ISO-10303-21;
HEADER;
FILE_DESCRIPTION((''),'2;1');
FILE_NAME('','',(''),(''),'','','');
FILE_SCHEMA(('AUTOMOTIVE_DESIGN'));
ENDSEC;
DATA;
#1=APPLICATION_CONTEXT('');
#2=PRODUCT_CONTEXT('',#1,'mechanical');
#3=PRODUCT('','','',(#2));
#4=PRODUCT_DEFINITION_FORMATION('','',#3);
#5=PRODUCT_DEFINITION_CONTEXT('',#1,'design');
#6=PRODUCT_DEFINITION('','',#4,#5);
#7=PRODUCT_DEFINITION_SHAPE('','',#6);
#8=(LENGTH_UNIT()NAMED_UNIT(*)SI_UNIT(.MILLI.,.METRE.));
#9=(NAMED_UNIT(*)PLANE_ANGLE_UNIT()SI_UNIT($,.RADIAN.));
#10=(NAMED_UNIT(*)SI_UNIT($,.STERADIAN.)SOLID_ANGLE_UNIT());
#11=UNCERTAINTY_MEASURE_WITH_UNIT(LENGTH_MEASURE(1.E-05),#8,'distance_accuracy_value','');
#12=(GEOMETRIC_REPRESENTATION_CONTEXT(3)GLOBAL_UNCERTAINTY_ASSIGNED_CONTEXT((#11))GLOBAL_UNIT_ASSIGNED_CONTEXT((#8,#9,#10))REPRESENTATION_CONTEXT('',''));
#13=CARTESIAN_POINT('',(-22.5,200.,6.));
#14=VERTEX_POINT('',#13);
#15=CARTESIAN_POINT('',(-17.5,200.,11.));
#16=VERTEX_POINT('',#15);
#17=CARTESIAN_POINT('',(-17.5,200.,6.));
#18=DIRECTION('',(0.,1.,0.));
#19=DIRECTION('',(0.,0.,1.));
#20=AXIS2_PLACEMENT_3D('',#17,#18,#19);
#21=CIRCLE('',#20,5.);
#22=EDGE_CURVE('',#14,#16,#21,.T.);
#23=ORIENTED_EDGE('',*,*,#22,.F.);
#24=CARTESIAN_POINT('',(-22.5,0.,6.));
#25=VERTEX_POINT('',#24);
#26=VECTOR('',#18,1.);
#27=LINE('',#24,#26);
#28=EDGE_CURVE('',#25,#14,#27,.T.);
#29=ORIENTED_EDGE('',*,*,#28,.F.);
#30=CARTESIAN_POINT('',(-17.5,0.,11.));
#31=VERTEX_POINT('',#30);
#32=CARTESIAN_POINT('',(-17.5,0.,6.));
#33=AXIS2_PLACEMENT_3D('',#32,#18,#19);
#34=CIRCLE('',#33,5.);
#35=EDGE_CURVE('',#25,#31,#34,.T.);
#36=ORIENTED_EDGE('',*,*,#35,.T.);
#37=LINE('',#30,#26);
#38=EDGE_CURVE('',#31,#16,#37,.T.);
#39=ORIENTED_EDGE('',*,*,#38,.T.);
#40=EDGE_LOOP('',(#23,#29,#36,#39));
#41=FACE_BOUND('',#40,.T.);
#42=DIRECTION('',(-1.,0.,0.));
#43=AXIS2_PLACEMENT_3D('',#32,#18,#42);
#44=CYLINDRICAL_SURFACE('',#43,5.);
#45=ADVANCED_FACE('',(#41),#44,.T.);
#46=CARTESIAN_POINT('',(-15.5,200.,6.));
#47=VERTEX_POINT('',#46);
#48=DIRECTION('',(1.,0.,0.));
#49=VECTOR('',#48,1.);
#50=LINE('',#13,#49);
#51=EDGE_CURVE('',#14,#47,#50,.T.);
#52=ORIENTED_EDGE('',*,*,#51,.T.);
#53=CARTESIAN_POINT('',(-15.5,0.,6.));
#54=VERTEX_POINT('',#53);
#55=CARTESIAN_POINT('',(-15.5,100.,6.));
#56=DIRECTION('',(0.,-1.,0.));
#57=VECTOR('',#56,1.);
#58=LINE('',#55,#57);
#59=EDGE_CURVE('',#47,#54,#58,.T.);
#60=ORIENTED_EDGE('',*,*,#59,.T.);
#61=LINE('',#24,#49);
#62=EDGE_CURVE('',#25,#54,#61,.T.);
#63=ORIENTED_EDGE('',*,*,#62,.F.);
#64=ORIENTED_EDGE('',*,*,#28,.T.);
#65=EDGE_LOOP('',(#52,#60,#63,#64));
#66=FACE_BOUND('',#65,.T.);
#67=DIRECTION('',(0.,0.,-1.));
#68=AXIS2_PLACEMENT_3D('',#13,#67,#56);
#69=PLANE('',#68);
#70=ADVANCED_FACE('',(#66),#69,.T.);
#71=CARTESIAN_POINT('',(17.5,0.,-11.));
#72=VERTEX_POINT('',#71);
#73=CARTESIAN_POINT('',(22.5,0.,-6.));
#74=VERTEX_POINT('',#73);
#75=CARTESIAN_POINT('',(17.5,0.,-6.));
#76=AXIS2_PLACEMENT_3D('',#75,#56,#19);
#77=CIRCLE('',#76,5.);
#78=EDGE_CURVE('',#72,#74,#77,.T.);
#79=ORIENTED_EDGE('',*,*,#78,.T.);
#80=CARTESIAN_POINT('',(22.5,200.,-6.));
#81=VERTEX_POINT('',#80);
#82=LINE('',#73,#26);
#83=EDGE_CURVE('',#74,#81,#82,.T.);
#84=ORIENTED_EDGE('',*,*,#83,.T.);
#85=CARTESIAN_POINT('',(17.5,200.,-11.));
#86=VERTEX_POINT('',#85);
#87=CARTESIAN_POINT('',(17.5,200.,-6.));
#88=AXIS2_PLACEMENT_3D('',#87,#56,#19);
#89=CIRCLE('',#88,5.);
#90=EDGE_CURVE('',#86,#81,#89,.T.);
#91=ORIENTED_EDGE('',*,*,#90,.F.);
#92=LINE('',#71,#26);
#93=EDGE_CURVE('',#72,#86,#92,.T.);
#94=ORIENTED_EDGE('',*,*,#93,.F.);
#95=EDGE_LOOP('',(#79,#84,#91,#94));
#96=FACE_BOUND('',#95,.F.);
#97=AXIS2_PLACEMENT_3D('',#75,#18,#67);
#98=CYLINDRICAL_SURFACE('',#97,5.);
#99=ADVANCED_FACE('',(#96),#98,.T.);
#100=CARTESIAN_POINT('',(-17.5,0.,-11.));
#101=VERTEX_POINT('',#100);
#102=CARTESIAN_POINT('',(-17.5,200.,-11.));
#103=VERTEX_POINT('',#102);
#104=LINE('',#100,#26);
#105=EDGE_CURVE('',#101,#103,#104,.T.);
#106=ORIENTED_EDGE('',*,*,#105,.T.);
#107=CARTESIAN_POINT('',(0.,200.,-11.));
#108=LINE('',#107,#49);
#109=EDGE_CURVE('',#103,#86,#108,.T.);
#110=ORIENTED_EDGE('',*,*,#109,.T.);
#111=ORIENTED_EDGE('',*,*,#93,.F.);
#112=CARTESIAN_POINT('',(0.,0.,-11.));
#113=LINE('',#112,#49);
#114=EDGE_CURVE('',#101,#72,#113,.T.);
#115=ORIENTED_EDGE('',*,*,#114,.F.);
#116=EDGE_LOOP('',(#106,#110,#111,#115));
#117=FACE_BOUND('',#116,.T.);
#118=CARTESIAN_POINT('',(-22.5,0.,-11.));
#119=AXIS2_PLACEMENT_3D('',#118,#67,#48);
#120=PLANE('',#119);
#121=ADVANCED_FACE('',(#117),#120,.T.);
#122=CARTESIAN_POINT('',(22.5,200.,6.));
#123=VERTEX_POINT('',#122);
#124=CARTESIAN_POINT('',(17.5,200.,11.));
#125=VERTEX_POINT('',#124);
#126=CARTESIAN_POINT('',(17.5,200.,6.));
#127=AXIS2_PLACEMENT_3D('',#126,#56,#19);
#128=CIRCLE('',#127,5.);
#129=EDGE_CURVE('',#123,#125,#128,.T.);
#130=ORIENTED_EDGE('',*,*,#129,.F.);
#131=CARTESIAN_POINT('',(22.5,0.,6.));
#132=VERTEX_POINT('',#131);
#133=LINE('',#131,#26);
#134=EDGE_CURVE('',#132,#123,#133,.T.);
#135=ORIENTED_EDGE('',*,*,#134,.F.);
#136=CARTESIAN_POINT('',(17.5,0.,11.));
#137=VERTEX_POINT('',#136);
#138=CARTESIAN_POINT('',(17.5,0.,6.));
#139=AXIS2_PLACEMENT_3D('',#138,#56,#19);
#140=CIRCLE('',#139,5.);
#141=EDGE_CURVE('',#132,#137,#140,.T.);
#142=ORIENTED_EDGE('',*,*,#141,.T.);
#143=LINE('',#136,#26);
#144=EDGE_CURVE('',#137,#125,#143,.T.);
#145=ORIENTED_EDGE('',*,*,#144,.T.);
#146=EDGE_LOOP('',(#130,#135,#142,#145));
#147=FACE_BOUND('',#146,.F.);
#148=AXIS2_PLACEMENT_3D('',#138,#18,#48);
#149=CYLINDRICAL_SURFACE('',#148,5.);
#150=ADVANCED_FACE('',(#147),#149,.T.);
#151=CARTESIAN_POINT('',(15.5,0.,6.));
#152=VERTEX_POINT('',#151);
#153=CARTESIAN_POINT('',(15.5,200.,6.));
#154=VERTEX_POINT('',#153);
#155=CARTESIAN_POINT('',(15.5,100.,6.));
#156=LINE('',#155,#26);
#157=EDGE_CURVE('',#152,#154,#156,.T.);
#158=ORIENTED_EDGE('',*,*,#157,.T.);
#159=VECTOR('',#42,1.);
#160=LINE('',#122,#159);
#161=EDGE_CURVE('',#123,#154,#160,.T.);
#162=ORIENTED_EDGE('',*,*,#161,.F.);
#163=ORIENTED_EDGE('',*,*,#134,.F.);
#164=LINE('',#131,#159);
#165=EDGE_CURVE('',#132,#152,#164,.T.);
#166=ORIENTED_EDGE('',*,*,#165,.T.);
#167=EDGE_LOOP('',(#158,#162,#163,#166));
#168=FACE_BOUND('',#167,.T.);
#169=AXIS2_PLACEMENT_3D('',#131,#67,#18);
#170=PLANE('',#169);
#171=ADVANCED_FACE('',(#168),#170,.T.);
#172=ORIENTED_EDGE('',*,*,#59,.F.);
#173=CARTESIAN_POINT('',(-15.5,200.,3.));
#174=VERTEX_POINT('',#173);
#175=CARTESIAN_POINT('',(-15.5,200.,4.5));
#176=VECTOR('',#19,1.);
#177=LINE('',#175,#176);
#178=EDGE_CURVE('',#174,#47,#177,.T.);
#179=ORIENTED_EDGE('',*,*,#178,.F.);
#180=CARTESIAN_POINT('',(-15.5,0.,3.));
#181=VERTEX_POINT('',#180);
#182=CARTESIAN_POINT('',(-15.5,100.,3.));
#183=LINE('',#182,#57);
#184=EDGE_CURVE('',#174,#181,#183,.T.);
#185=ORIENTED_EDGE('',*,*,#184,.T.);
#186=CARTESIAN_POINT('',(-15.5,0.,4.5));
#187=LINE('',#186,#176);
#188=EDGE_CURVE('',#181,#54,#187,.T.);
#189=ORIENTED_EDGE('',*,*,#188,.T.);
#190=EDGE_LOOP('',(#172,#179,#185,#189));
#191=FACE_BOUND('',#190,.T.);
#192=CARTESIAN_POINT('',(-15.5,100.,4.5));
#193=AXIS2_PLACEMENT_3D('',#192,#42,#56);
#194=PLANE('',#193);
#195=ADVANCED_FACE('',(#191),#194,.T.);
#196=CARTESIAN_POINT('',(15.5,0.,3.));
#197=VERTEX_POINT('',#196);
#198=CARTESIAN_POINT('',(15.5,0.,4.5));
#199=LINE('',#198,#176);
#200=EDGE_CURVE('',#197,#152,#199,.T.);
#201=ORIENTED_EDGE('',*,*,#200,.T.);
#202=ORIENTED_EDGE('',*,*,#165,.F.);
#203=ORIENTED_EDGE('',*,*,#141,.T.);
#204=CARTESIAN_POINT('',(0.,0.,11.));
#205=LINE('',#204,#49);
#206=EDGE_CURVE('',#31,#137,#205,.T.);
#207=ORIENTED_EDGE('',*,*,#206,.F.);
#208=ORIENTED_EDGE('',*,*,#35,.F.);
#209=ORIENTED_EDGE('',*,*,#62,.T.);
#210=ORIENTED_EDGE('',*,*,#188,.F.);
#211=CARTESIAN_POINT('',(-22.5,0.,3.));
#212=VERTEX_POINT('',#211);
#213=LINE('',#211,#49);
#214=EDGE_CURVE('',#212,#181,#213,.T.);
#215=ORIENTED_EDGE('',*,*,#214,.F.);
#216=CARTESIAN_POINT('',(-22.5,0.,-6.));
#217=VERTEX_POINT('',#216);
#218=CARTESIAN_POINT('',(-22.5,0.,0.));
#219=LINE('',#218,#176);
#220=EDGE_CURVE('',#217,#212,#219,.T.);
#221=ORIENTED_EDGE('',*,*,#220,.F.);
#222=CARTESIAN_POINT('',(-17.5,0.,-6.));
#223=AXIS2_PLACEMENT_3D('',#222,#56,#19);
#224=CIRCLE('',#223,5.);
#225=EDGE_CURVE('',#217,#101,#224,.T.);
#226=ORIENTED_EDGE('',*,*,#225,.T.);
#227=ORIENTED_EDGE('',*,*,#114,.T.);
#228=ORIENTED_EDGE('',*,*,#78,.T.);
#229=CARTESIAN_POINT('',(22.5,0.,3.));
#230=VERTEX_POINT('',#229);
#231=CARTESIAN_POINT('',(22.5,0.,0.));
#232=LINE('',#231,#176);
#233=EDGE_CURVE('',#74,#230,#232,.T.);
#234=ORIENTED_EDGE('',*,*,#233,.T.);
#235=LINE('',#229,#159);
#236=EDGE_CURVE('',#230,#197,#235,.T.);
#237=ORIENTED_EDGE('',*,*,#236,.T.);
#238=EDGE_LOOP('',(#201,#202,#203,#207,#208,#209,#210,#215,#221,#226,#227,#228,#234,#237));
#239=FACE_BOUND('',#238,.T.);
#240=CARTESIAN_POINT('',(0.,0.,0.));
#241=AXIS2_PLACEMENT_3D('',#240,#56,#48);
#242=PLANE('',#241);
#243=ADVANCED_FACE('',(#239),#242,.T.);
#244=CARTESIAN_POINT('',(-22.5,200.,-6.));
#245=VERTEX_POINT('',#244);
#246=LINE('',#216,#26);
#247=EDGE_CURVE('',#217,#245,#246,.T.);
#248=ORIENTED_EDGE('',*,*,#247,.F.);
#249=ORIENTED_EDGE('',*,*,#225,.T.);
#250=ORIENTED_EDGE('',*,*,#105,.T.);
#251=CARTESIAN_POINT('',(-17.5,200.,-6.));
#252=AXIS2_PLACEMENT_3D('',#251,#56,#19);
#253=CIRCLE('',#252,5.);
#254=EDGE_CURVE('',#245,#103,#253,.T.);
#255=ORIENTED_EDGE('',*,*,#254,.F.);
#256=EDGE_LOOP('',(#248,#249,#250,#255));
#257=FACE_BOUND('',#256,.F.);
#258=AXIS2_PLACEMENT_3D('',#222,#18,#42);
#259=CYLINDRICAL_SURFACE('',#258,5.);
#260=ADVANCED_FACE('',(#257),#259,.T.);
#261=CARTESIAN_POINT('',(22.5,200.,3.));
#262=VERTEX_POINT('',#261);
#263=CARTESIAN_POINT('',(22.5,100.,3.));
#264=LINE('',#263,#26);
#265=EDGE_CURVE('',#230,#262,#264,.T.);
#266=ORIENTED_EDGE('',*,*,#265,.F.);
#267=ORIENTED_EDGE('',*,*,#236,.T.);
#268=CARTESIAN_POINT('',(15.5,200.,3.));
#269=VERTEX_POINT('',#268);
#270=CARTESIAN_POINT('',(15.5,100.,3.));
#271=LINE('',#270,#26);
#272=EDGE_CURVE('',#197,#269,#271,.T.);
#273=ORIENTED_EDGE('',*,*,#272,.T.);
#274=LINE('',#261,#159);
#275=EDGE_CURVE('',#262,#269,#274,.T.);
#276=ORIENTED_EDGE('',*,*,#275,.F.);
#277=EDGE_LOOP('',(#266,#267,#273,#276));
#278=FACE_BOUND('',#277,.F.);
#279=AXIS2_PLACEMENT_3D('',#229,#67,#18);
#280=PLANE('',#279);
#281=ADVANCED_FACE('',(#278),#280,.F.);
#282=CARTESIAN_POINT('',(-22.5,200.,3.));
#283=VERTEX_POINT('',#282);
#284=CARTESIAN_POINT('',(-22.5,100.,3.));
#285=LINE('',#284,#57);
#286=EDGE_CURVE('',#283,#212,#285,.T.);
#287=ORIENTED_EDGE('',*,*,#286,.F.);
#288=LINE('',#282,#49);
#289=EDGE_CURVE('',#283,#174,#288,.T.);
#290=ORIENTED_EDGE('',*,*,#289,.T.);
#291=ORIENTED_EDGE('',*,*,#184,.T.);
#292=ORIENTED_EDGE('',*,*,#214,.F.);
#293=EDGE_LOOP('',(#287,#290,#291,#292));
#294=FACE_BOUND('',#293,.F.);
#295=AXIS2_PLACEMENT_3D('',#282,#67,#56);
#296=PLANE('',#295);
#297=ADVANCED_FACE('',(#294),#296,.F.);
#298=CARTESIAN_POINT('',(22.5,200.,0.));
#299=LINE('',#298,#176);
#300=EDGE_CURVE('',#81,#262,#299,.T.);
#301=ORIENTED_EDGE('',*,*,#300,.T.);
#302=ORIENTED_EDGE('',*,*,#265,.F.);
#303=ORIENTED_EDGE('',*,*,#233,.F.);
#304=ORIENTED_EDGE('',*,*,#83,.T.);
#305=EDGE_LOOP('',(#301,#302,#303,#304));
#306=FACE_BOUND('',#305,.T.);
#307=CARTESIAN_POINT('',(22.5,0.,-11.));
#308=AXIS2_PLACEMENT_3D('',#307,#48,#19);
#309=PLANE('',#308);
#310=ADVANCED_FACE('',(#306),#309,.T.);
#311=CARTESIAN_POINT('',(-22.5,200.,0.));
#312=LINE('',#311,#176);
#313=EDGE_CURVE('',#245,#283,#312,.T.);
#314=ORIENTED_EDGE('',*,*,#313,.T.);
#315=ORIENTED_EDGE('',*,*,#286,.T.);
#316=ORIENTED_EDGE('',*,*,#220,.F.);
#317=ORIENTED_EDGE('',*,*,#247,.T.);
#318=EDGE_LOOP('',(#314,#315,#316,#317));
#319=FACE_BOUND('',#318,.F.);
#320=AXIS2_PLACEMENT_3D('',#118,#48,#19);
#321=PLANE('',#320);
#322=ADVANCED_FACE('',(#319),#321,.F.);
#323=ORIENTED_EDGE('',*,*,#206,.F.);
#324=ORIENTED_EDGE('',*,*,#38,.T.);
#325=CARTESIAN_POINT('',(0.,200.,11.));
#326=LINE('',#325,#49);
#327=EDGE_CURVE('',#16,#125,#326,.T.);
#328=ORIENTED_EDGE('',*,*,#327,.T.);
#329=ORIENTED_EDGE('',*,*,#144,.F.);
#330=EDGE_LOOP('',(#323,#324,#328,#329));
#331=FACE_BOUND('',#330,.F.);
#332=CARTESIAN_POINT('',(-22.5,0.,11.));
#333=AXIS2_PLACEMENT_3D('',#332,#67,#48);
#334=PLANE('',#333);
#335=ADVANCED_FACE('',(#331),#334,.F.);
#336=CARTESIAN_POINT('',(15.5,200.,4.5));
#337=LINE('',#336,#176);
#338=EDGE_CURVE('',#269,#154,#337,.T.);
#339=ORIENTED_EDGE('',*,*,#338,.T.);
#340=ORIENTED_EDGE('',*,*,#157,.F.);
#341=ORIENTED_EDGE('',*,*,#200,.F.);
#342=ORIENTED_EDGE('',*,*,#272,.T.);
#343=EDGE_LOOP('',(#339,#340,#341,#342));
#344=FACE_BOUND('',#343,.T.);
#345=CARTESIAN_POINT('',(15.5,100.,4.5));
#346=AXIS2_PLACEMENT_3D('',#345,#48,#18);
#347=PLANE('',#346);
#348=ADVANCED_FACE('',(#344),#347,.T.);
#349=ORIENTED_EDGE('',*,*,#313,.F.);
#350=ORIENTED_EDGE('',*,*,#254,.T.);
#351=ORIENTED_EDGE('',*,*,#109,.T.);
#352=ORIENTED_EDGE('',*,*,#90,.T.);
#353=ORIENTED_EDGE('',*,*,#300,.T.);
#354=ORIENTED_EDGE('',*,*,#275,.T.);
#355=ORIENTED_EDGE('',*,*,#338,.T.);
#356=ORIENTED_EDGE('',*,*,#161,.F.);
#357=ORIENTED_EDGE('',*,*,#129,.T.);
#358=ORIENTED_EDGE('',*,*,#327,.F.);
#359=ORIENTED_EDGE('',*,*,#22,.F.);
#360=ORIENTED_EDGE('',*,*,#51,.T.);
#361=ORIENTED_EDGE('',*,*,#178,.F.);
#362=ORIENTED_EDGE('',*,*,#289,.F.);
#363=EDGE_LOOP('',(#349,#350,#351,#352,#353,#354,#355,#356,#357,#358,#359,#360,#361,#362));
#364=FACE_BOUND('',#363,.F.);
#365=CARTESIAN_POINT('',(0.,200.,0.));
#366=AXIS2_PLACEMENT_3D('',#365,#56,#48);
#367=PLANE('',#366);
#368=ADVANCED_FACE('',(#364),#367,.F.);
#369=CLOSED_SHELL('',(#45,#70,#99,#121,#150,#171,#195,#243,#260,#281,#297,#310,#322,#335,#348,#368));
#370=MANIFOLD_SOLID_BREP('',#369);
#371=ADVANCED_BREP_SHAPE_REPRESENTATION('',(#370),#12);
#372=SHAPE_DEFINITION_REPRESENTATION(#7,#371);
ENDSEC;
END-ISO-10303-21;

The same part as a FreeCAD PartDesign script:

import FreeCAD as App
import Part
import Sketcher
from FreeCAD import Vector


def edges_at(feature, points):
    """Names of the edges that pass closest to the given points."""
    edges = feature.Shape.Edges
    near = lambda p: min(range(len(edges)), key=lambda i: edges[i].distToShape(Part.Vertex(*p))[0])
    return sorted({f"Edge{near(p) + 1}" for p in points})


def add_polygon(sketch, points):
    """Adds a closed chain of lines whose ends are joined by coincident constraints."""
    first, n = sketch.GeometryCount, len(points)
    for a, b in zip(points, points[1:] + points[:1]):
        sketch.addGeometry(Part.LineSegment(App.Vector(*a, 0), App.Vector(*b, 0)), False)
    for i in range(n):
        sketch.addConstraint(Sketcher.Constraint("Coincident", first + i, 2, first + (i + 1) % n, 1))

doc = App.newDocument("Part")
params = doc.addObject("Spreadsheet::Sheet", "Params")
for row, (alias, value) in enumerate([
    ("sketch1_width", "45 mm"),
    ("sketch1_height", "22 mm"),
    ("pad1_length", "200 mm"),
    ("fillet_radius", "5 mm"),
    ("sketch2_width", "200 mm"),
    ("sketch2_height", "3 mm"),
    ("pocket1_length", "7 mm"),
    ("sketch3_width", "200 mm"),
    ("sketch3_height", "3 mm"),
    ("pocket2_length", "7 mm"),
], start=1):
    params.set(f"A{row}", alias)
    params.set(f"B{row}", "=" + value)
    params.setAlias(f"B{row}", alias)

body = doc.addObject("PartDesign::Body", "Body")

# Sketch on XZ plane
sketch1 = body.newObject("Sketcher::SketchObject", "Sketch")
sketch1.AttachmentSupport = (doc.getObject("XZ_Plane"), [""])
sketch1.MapMode = "FlatFace"
add_polygon(sketch1, [(-22, 11), (-22, -11), (22, -11), (22, 11)])  # lines 0-3
sketch1.addConstraint(Sketcher.Constraint("Vertical", 0))
sketch1.addConstraint(Sketcher.Constraint("Horizontal", 1))
sketch1.addConstraint(Sketcher.Constraint("Vertical", 2))
sketch1.addConstraint(Sketcher.Constraint("Horizontal", 3))
sketch1.addConstraint(Sketcher.Constraint("Symmetric", 0, 2, 2, 2, -1, 1))
sketch1.addConstraint(Sketcher.Constraint("DistanceX", 1, 1, 1, 2, 45.0))
sketch1.addConstraint(Sketcher.Constraint("DistanceY", 0, 2, 0, 1, 22.0))
sketch1.setExpression("Constraints[9]", "Params.sketch1_width")
sketch1.setExpression("Constraints[10]", "Params.sketch1_height")
pad1 = body.newObject("PartDesign::Pad", "Pad")
pad1.Profile = sketch1
pad1.setExpression("Length", "Params.pad1_length")
pad1.Reversed = True
doc.recompute()

fillet = body.newObject("PartDesign::Fillet", "Fillet")
fillet.Base = (pad1, edges_at(pad1, [
    (22.5, 100, 11),
    (-22.5, 100, 11),
    (22.5, 100, -11),
    (-22.5, 100, -11),
]))
fillet.setExpression("Radius", "Params.fillet_radius")

# Sketch on YZ plane
sketch2 = body.newObject("Sketcher::SketchObject", "Sketch001")
sketch2.AttachmentSupport = (doc.getObject("YZ_Plane"), [""])
sketch2.MapMode = "FlatFace"
sketch2.AttachmentOffset = App.Placement(Vector(0, 0, 22.5), App.Rotation())
add_polygon(sketch2, [(0, 6), (0, 3), (200, 3), (200, 6)])  # lines 0-3
sketch2.addConstraint(Sketcher.Constraint("Vertical", 0))
sketch2.addConstraint(Sketcher.Constraint("Horizontal", 1))
sketch2.addConstraint(Sketcher.Constraint("Vertical", 2))
sketch2.addConstraint(Sketcher.Constraint("Horizontal", 3))
sketch2.addConstraint(Sketcher.Constraint("PointOnObject", 0, 2, -2))
sketch2.addConstraint(Sketcher.Constraint("DistanceX", 1, 1, 1, 2, 200.0))
sketch2.addConstraint(Sketcher.Constraint("DistanceY", 0, 2, 0, 1, 3.0))
sketch2.addConstraint(Sketcher.Constraint("DistanceY", -1, 1, 0, 2, 3.0))
sketch2.setExpression("Constraints[9]", "Params.sketch2_width")
sketch2.setExpression("Constraints[10]", "Params.sketch2_height")
pocket1 = body.newObject("PartDesign::Pocket", "Pocket")
pocket1.Profile = sketch2
pocket1.setExpression("Length", "Params.pocket1_length")

# Sketch on YZ plane
sketch3 = body.newObject("Sketcher::SketchObject", "Sketch002")
sketch3.AttachmentSupport = (doc.getObject("YZ_Plane"), [""])
sketch3.MapMode = "FlatFace"
sketch3.AttachmentOffset = App.Placement(Vector(0, 0, -22.5), App.Rotation())
add_polygon(sketch3, [(200, 6), (200, 3), (0, 3), (0, 6)])  # lines 0-3
sketch3.addConstraint(Sketcher.Constraint("Vertical", 0))
sketch3.addConstraint(Sketcher.Constraint("Horizontal", 1))
sketch3.addConstraint(Sketcher.Constraint("Vertical", 2))
sketch3.addConstraint(Sketcher.Constraint("Horizontal", 3))
sketch3.addConstraint(Sketcher.Constraint("PointOnObject", 1, 2, -2))
sketch3.addConstraint(Sketcher.Constraint("DistanceX", 1, 2, 1, 1, 200.0))
sketch3.addConstraint(Sketcher.Constraint("DistanceY", 0, 2, 0, 1, 3.0))
sketch3.addConstraint(Sketcher.Constraint("DistanceY", -1, 1, 0, 2, 3.0))
sketch3.setExpression("Constraints[9]", "Params.sketch3_width")
sketch3.setExpression("Constraints[10]", "Params.sketch3_height")
pocket2 = body.newObject("PartDesign::Pocket", "Pocket001")
pocket2.Profile = sketch3
pocket2.setExpression("Length", "Params.pocket2_length")
pocket2.Reversed = True

doc.recompute()
